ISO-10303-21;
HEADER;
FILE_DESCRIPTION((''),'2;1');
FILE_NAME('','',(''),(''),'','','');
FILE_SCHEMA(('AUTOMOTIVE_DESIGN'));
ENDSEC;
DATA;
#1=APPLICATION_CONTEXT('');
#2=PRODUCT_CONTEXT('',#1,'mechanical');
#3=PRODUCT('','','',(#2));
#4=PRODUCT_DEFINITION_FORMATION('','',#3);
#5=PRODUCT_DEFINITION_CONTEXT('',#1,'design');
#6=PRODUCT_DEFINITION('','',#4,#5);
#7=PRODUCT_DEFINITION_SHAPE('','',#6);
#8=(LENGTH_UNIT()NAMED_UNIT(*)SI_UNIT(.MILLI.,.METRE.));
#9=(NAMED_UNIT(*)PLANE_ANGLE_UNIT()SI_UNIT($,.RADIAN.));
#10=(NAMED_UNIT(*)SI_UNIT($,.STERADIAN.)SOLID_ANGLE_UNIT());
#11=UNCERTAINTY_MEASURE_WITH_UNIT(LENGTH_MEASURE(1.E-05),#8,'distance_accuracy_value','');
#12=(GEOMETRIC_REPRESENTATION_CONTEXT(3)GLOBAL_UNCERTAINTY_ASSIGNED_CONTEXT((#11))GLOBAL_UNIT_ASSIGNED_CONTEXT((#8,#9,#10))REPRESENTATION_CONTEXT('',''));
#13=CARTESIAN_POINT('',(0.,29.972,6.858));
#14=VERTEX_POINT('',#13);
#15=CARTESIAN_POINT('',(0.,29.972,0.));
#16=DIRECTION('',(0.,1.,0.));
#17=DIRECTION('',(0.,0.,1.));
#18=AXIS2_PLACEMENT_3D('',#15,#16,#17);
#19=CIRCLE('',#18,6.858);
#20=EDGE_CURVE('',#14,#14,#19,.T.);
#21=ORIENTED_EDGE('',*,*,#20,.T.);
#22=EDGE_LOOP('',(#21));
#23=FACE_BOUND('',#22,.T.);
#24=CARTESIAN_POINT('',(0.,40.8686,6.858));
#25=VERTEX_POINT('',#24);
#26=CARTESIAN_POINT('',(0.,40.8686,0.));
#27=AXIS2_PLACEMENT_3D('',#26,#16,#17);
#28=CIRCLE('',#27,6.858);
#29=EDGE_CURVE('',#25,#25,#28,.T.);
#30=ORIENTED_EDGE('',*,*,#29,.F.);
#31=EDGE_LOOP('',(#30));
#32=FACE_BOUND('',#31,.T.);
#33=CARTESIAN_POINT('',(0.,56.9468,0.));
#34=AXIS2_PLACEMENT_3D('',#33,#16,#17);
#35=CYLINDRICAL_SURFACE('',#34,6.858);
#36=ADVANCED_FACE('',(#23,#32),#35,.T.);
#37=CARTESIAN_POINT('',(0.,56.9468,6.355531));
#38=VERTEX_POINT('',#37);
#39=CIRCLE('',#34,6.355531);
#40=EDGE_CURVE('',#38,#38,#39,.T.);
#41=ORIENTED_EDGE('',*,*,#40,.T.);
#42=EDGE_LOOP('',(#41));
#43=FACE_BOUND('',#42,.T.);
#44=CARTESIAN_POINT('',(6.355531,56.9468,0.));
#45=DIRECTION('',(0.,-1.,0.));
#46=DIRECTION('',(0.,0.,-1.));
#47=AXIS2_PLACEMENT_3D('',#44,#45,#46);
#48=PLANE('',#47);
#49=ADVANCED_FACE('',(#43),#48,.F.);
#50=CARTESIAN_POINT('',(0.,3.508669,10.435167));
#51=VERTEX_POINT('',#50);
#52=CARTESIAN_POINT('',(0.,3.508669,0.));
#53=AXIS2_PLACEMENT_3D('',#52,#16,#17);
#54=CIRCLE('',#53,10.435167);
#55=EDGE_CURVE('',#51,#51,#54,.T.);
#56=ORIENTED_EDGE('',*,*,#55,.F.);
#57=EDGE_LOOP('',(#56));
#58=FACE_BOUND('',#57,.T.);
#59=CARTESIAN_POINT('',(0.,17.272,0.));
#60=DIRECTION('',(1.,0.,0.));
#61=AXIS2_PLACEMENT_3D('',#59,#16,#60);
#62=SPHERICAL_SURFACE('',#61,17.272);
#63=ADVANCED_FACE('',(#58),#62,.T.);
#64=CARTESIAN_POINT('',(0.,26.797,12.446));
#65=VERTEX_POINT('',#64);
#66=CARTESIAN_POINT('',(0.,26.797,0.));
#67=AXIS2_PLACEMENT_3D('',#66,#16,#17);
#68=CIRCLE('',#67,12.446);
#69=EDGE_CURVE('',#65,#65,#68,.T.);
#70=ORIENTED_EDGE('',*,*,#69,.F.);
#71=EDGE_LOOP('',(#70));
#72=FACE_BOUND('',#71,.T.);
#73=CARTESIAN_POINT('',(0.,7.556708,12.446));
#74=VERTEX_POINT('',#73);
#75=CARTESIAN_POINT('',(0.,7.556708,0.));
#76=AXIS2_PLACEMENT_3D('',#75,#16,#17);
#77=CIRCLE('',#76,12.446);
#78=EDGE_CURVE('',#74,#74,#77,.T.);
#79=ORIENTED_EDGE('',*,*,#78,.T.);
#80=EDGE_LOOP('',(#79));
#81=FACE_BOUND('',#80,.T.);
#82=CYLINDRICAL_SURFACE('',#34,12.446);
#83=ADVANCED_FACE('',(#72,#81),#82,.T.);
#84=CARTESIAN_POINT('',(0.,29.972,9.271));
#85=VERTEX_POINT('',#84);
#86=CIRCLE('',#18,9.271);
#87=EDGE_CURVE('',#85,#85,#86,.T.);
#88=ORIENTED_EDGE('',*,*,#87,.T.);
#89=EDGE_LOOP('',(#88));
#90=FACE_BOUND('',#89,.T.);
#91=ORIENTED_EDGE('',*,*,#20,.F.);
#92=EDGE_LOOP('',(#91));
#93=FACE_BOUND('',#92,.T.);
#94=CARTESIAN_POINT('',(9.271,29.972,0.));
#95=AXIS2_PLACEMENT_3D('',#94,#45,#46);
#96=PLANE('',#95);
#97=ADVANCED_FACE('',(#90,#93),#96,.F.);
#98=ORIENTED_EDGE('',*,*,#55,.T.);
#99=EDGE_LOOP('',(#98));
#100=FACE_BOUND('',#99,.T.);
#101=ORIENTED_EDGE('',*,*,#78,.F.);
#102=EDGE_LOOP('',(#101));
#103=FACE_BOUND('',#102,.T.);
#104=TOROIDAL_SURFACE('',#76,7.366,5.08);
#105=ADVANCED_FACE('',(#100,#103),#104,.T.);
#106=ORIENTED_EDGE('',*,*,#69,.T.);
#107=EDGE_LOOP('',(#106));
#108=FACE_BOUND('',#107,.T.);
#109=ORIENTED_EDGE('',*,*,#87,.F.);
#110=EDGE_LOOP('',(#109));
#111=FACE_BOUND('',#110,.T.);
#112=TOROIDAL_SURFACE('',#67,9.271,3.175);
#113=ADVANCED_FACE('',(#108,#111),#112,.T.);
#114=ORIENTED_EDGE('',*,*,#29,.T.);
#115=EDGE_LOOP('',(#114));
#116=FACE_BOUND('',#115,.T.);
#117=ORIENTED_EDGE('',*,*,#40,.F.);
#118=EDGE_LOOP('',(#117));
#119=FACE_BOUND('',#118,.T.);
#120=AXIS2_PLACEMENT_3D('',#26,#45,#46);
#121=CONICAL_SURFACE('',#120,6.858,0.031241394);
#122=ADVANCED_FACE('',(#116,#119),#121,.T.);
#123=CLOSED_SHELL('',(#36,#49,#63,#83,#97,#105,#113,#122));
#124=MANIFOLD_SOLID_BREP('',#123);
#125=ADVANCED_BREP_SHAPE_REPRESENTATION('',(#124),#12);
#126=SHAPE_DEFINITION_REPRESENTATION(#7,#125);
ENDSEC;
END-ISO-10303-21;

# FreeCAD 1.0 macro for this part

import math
import FreeCAD as App
import Part
import Sketcher
Q = App.Units.Quantity

doc = App.newDocument("Part")
params = doc.addObject("Spreadsheet::Sheet", "Params")
for row, (alias, value) in enumerate([
    ("sketch1_radius", "0.2 in"),
    ("sketch1_radius2", "0.68 in"),
    ("sketch1_radius3", "0.125 in"),
    ("sketch1_width", "0.095 in"),
    ("sketch1_height", "0.429 in"),
    ("revolution_angle", "360 deg"),
], start=1):
    params.set(f"A{row}", alias)
    params.set(f"B{row}", "=" + value)
    params.setAlias(f"B{row}", alias)

body = doc.addObject("PartDesign::Body", "Body")

# Sketch on XY plane
sketch1 = doc.addObject("Sketcher::SketchObject", "Sketch")
body.addObject(sketch1)
sketch1.AttachmentSupport = (doc.XY_Plane, [""])
sketch1.MapMode = "FlatFace"
sketch1.addGeometry([
    Part.LineSegment(App.Vector(12.4, 7.6, 0), App.Vector(12.4, 26.8, 0)),  # 0
    Part.ArcOfCircle(Part.Circle(App.Vector(9.3, 26.8, 0), App.Vector(0, 0, 1), 3.2), math.radians(0), math.radians(90)),  # 1
    Part.LineSegment(App.Vector(9.3, 30, 0), App.Vector(6.9, 30, 0)),  # 2
    Part.LineSegment(App.Vector(6.9, 30, 0), App.Vector(6.9, 40.9, 0)),  # 3
    Part.LineSegment(App.Vector(6.9, 40.9, 0), App.Vector(6.4, 56.9, 0)),  # 4
    Part.LineSegment(App.Vector(6.4, 56.9, 0), App.Vector(0, 56.9, 0)),  # 5
    Part.LineSegment(App.Vector(0, 56.9, 0), App.Vector(0, 0, 0)),  # 6
    Part.ArcOfCircle(Part.Circle(App.Vector(0, 17.3, 0), App.Vector(0, 0, 1), 17.3), math.radians(-90), math.radians(-53)),  # 7
    Part.ArcOfCircle(Part.Circle(App.Vector(7.4, 7.6, 0), App.Vector(0, 0, 1), 5.1), math.radians(-53), math.radians(0)),  # 8
], False)
sketch1.addConstraint([
    Sketcher.Constraint("Tangent", 0, 2, 1, 1),
    Sketcher.Constraint("Tangent", 1, 2, 2, 1),
    Sketcher.Constraint("Coincident", 2, 2, 3, 1),
    Sketcher.Constraint("Coincident", 3, 2, 4, 1),
    Sketcher.Constraint("Coincident", 4, 2, 5, 1),
    Sketcher.Constraint("Coincident", 5, 2, 6, 1),
    Sketcher.Constraint("Coincident", 6, 2, 7, 1),
    Sketcher.Constraint("Tangent", 7, 2, 8, 1),
    Sketcher.Constraint("Tangent", 8, 2, 0, 1),
    Sketcher.Constraint("Vertical", 0),
    Sketcher.Constraint("Horizontal", 2),
    Sketcher.Constraint("Vertical", 3),
    Sketcher.Constraint("Horizontal", 5),
    Sketcher.Constraint("Vertical", 6),
    Sketcher.Constraint("Coincident", 6, 2, -1, 1),
    Sketcher.Constraint("PointOnObject", 7, 3, -2),
    Sketcher.Constraint("Radius", 8, Q("0.2 in")),
    Sketcher.Constraint("Radius", 7, Q("0.68 in")),
    Sketcher.Constraint("Radius", 1, Q("0.125 in")),
    Sketcher.Constraint("DistanceY", 7, 3, 1, 2, Q("0.5 in")),
    Sketcher.Constraint("DistanceX", 2, 2, 2, 1, Q("0.095 in")),
    Sketcher.Constraint("DistanceY", 3, 1, 3, 2, Q("0.429 in")),
    Sketcher.Constraint("DistanceY", 6, 2, 6, 1, Q("2.242 in")),
    Sketcher.Constraint("DistanceX", -1, 1, 8, 3, Q("0.29 in")),
    Sketcher.Constraint("Angle", 4, Q("91.79 deg")),
])
sketch1.setExpression("Constraints[16]", "Params.sketch1_radius")
sketch1.setExpression("Constraints[17]", "Params.sketch1_radius2")
sketch1.setExpression("Constraints[18]", "Params.sketch1_radius3")
sketch1.setExpression("Constraints[20]", "Params.sketch1_width")
sketch1.setExpression("Constraints[21]", "Params.sketch1_height")
revolution = doc.addObject("PartDesign::Revolution", "Revolution")
body.addObject(revolution)
revolution.Profile = sketch1
revolution.ReferenceAxis = (sketch1, ["V_Axis"])
revolution.setExpression("Angle", "Params.revolution_angle")

doc.recompute()
